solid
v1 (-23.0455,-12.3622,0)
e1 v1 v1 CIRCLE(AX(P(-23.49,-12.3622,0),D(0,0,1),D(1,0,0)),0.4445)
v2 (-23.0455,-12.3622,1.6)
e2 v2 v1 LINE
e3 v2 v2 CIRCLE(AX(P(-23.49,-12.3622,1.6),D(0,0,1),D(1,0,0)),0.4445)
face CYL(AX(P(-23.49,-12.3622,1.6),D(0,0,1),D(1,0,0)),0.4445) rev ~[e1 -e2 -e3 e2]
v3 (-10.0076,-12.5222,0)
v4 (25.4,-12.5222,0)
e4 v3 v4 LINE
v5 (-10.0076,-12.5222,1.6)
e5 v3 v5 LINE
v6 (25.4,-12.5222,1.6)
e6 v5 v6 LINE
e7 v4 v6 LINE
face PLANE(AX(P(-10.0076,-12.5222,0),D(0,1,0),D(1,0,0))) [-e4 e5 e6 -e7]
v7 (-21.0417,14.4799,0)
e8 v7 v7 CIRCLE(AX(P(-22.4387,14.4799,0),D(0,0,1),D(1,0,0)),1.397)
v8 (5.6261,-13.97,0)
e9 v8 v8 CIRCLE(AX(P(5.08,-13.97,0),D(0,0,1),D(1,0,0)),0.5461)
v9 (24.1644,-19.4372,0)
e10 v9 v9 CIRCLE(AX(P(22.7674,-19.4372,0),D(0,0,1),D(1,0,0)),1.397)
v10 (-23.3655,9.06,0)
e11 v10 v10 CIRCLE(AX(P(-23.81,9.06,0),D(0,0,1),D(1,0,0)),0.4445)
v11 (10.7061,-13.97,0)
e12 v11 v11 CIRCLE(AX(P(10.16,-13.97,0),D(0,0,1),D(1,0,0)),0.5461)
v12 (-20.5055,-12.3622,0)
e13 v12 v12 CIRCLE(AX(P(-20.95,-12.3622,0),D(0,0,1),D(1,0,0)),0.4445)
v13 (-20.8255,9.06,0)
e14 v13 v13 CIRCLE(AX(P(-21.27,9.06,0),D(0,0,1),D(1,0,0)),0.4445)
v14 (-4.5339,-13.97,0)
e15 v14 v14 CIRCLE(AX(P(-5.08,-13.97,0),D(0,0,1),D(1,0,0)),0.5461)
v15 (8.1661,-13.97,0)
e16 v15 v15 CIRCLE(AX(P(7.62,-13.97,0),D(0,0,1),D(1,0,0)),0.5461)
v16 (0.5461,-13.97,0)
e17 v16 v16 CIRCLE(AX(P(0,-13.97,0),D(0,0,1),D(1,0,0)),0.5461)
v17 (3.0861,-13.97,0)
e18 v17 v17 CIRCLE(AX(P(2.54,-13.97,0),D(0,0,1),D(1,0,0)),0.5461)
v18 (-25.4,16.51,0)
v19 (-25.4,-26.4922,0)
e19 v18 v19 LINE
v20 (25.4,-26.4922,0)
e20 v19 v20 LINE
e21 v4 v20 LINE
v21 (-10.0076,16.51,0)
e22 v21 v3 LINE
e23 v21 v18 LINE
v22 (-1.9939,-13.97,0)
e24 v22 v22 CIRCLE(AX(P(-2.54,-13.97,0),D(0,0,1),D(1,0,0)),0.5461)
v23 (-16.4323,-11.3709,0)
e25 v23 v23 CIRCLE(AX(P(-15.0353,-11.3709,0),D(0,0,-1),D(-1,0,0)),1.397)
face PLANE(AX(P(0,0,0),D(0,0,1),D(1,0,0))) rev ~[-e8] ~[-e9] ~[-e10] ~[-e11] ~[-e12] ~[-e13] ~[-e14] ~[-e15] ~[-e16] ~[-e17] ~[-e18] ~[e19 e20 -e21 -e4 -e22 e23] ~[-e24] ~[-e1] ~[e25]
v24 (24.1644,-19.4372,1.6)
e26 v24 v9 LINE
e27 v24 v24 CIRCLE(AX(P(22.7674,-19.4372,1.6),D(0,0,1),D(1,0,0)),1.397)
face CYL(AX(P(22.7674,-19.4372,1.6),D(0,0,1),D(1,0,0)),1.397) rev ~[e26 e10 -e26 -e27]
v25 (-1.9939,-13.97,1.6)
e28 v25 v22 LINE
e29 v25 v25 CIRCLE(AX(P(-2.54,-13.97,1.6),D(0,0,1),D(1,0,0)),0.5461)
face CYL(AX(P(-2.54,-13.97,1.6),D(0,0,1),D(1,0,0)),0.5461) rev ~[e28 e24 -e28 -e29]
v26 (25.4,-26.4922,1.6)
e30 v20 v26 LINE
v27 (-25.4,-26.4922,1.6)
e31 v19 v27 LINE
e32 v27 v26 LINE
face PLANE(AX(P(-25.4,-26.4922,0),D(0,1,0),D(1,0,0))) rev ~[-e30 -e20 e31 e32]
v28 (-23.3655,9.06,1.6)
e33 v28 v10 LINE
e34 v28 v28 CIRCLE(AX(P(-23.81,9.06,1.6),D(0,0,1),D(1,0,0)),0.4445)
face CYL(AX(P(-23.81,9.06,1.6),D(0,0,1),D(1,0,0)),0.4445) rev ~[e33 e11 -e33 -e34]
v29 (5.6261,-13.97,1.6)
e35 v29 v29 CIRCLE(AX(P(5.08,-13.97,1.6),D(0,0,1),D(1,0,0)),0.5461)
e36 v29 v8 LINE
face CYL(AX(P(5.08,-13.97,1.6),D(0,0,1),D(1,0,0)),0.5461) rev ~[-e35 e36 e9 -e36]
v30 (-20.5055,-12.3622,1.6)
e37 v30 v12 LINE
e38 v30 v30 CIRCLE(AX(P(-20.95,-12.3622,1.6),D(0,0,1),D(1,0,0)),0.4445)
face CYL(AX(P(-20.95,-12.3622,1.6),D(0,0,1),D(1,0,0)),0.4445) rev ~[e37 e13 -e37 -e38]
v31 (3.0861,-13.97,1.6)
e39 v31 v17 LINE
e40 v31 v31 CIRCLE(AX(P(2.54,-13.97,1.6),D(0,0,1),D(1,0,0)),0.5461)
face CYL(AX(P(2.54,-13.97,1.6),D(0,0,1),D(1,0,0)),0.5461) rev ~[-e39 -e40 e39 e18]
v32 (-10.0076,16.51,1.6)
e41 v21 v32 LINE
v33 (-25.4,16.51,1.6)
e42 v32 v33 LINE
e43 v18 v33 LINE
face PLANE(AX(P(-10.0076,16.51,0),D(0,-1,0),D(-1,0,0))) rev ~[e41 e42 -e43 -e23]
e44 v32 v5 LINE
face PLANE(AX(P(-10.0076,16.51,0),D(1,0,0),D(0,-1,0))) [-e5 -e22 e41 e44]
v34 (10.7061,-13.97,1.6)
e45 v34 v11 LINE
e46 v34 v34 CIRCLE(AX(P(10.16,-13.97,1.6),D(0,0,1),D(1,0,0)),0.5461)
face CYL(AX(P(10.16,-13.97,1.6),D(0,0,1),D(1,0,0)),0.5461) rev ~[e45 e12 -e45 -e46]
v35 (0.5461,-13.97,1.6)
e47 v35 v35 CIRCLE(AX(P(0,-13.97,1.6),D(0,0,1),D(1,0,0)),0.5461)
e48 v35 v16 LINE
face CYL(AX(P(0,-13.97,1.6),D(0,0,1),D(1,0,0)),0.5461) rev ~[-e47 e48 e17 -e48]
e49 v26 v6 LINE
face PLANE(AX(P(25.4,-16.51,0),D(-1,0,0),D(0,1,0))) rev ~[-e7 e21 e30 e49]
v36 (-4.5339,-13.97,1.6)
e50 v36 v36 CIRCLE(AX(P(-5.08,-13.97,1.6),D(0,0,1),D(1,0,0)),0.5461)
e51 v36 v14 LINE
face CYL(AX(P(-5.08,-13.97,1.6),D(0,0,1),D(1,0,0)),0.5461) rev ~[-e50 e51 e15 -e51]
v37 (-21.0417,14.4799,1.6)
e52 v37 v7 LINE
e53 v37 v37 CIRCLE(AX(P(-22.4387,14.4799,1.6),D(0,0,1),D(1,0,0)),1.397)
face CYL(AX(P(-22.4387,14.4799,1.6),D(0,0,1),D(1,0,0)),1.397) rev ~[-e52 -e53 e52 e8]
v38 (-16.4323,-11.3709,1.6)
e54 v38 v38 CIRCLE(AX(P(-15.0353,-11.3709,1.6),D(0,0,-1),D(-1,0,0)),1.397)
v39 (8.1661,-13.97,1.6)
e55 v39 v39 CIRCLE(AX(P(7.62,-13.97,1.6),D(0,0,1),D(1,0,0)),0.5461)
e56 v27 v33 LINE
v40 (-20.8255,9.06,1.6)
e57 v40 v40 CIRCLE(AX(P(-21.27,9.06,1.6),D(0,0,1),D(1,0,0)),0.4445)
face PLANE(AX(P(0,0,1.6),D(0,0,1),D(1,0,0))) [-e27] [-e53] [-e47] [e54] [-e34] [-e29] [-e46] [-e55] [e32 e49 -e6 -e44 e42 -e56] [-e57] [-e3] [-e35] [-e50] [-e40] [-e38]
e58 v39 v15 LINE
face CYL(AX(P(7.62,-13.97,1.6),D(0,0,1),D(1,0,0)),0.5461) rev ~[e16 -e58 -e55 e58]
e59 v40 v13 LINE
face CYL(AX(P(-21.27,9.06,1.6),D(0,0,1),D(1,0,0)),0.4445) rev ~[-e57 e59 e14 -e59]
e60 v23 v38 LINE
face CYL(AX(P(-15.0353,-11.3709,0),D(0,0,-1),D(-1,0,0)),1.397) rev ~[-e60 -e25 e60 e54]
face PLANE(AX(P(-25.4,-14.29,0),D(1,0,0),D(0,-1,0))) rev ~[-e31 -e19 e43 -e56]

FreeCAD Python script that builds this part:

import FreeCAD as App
import Part
import Sketcher
from FreeCAD import Vector
Q = App.Units.Quantity


def add_polygon(sketch, points):
    """Adds a closed chain of lines whose ends are joined by coincident constraints."""
    first, n = sketch.GeometryCount, len(points)
    for a, b in zip(points, points[1:] + points[:1]):
        sketch.addGeometry(Part.LineSegment(App.Vector(*a, 0), App.Vector(*b, 0)), False)
    for i in range(n):
        sketch.addConstraint(Sketcher.Constraint("Coincident", first + i, 2, first + (i + 1) % n, 1))

doc = App.newDocument("Part")
body = doc.addObject("PartDesign::Body", "Body")

sketch1 = body.newObject("Sketcher::SketchObject", "Sketch")
sketch1.AttachmentSupport = (doc.getObject("XY_Plane"), [""])
sketch1.MapMode = "FlatFace"
add_polygon(sketch1, [(-25, -26), (25, -26), (25, -13), (-10, -13), (-10, 17), (-25, 17)])
sketch1.addConstraint([
    Sketcher.Constraint("Horizontal", 0),
    Sketcher.Constraint("Vertical", 1),
    Sketcher.Constraint("Horizontal", 2),
    Sketcher.Constraint("Vertical", 3),
    Sketcher.Constraint("Horizontal", 4),
    Sketcher.Constraint("Vertical", 5),
    Sketcher.Constraint("DistanceY", 1, 1, 1, 2, Q("0.55 in")),
    Sketcher.Constraint("DistanceX", 0, 1, 0, 2, Q("2 in")),
    Sketcher.Constraint("DistanceX", 2, 2, 2, 1, Q("1.394 in")),
    Sketcher.Constraint("DistanceY", 3, 1, 3, 2, Q("1.143 in")),
    Sketcher.Constraint("DistanceX", -1, 1, 0, 2, Q("1 in")),
    Sketcher.Constraint("DistanceY", -1, 1, 3, 2, Q("0.65 in")),
])
pad1 = body.newObject("PartDesign::Pad", "Pad")
pad1.Profile = sketch1
pad1.Length = Q("0.0629921 in")

sketch2 = body.newObject("Sketcher::SketchObject", "Sketch001")
sketch2.AttachmentSupport = (doc.getObject("XY_Plane"), [""])
sketch2.MapMode = "FlatFace"
sketch2.AttachmentOffset = App.Placement(Vector(0, 0, 0.0629921 * 25.4), App.Rotation())
sketch2.addGeometry([
    Part.Circle(Vector(10.2, -14, 0), Vector(0, 0, 1), 0.5),
    Part.Circle(Vector(7.6, -14, 0), Vector(0, 0, 1), 0.5),
    Part.Circle(Vector(5.1, -14, 0), Vector(0, 0, 1), 0.5),
    Part.Circle(Vector(2.5, -14, 0), Vector(0, 0, 1), 0.5),
    Part.Circle(Vector(0, -14, 0), Vector(0, 0, 1), 0.5),
    Part.Circle(Vector(-2.5, -14, 0), Vector(0, 0, 1), 0.5),
    Part.Circle(Vector(-5.1, -14, 0), Vector(0, 0, 1), 0.5),
], False)
sketch2.addConstraint([
    Sketcher.Constraint("Equal", 0, 1),
    Sketcher.Constraint("Equal", 1, 2),
    Sketcher.Constraint("Equal", 2, 3),
    Sketcher.Constraint("Equal", 3, 4),
    Sketcher.Constraint("Equal", 4, 5),
    Sketcher.Constraint("Equal", 5, 6),
    Sketcher.Constraint("Symmetric", 3, 3, 5, 3, -2),
    Sketcher.Constraint("Symmetric", 2, 3, 6, 3, -2),
    Sketcher.Constraint("PointOnObject", 4, 3, -2),
    Sketcher.Constraint("Horizontal", 0, 3, 1, 3),
    Sketcher.Constraint("Horizontal", 1, 3, 2, 3),
    Sketcher.Constraint("Horizontal", 2, 3, 3, 3),
    Sketcher.Constraint("Horizontal", 3, 3, 4, 3),
    Sketcher.Constraint("Diameter", 0, Q("0.043 in")),
    Sketcher.Constraint("DistanceX", -1, 1, 0, 3, Q("0.4 in")),
    Sketcher.Constraint("DistanceX", -1, 1, 1, 3, Q("0.3 in")),
    Sketcher.Constraint("DistanceX", -1, 1, 2, 3, Q("0.2 in")),
    Sketcher.Constraint("DistanceX", -1, 1, 3, 3, Q("0.1 in")),
    Sketcher.Constraint("DistanceY", 0, 3, -1, 1, Q("0.55 in")),
])
pocket1 = body.newObject("PartDesign::Pocket", "Pocket")
pocket1.Profile = sketch2
pocket1.Length = Q("0.0629921 in")

sketch3 = body.newObject("Sketcher::SketchObject", "Sketch002")
sketch3.AttachmentSupport = (doc.getObject("XY_Plane"), [""])
sketch3.MapMode = "FlatFace"
sketch3.AttachmentOffset = App.Placement(Vector(0, 0, 0.0629921 * 25.4), App.Rotation())
sketch3.addGeometry([
    Part.Circle(Vector(-23.49, -12.36, 0), Vector(0, 0, 1), 0.44),
    Part.Circle(Vector(-20.95, -12.36, 0), Vector(0, 0, 1), 0.44),
], False)
sketch3.addConstraint([
    Sketcher.Constraint("Equal", 0, 1),
    Sketcher.Constraint("Horizontal", 0, 3, 1, 3),
    Sketcher.Constraint("Diameter", 0, Q("0.035 in")),
    Sketcher.Constraint("DistanceX", 0, 3, 1, 3, Q("0.1 in")),
    Sketcher.Constraint("DistanceX", 0, 3, -1, 1, Q("0.9248 in")),
    Sketcher.Constraint("DistanceY", 0, 3, -1, 1, Q("0.4867 in")),
])
pocket2 = body.newObject("PartDesign::Pocket", "Pocket001")
pocket2.Profile = sketch3
pocket2.Length = Q("1 in")

sketch4 = body.newObject("Sketcher::SketchObject", "Sketch003")
sketch4.AttachmentSupport = (doc.getObject("XY_Plane"), [""])
sketch4.MapMode = "FlatFace"
sketch4.AttachmentOffset = App.Placement(Vector(0, 0, 0.0629921 * 25.4), App.Rotation())
sketch4.addGeometry([
    Part.Circle(Vector(-23.81, 9.06, 0), Vector(0, 0, 1), 0.44),
    Part.Circle(Vector(-21.27, 9.06, 0), Vector(0, 0, 1), 0.44),
], False)
sketch4.addConstraint([
    Sketcher.Constraint("Equal", 0, 1),
    Sketcher.Constraint("Horizontal", 0, 3, 1, 3),
    Sketcher.Constraint("Diameter", 0, Q("0.035 in")),
    Sketcher.Constraint("DistanceX", 0, 3, 1, 3, Q("0.1 in")),
    Sketcher.Constraint("DistanceX", 0, 3, -1, 1, Q("0.9374 in")),
    Sketcher.Constraint("DistanceY", -1, 1, 0, 3, Q("0.3567 in")),
])
pocket3 = body.newObject("PartDesign::Pocket", "Pocket002")
pocket3.Profile = sketch4
pocket3.Length = Q("1 in")

sketch5 = body.newObject("Sketcher::SketchObject", "Sketch004")
sketch5.AttachmentSupport = (doc.getObject("XY_Plane"), [""])
sketch5.MapMode = "FlatFace"
sketch5.AttachmentOffset = App.Placement(Vector(0, 0, 0.0629921 * 25.4), App.Rotation())
sketch5.addGeometry(Part.Circle(Vector(22.8, -19.4, 0), Vector(0, 0, 1), 1.4), False)
sketch5.addConstraint([
    Sketcher.Constraint("Diameter", 0, Q("0.11 in")),
    Sketcher.Constraint("DistanceX", -1, 1, 0, 3, 22.7674),
    Sketcher.Constraint("DistanceY", 0, 3, -1, 1, 19.4372),
])
pocket4 = body.newObject("PartDesign::Pocket", "Pocket003")
pocket4.Profile = sketch5
pocket4.Length = Q("1 in")

sketch6 = body.newObject("Sketcher::SketchObject", "Sketch005")
sketch6.AttachmentSupport = (doc.getObject("XY_Plane"), [""])
sketch6.MapMode = "FlatFace"
sketch6.addGeometry(Part.Circle(Vector(-15, -11.4, 0), Vector(0, 0, 1), 1.4), False)
sketch6.addConstraint([
    Sketcher.Constraint("Diameter", 0, Q("0.11 in")),
    Sketcher.Constraint("DistanceX", 0, 3, -1, 1, 15.0353),
    Sketcher.Constraint("DistanceY", 0, 3, -1, 1, 11.371),
])
pocket5 = body.newObject("PartDesign::Pocket", "Pocket004")
pocket5.Profile = sketch6
pocket5.Length = Q("1 in")
pocket5.Reversed = True

sketch7 = body.newObject("Sketcher::SketchObject", "Sketch006")
sketch7.AttachmentSupport = (doc.getObject("XY_Plane"), [""])
sketch7.MapMode = "FlatFace"
sketch7.AttachmentOffset = App.Placement(Vector(0, 0, 0.0629921 * 25.4), App.Rotation())
sketch7.addGeometry(Part.Circle(Vector(-22.4, 14.5, 0), Vector(0, 0, 1), 1.4), False)
sketch7.addConstraint([
    Sketcher.Constraint("Diameter", 0, Q("0.11 in")),
    Sketcher.Constraint("DistanceX", 0, 3, -1, 1, 22.4387),
    Sketcher.Constraint("DistanceY", -1, 1, 0, 3, 14.48),
])
pocket6 = body.newObject("PartDesign::Pocket", "Pocket005")
pocket6.Profile = sketch7
pocket6.Length = Q("1 in")

doc.recompute()
